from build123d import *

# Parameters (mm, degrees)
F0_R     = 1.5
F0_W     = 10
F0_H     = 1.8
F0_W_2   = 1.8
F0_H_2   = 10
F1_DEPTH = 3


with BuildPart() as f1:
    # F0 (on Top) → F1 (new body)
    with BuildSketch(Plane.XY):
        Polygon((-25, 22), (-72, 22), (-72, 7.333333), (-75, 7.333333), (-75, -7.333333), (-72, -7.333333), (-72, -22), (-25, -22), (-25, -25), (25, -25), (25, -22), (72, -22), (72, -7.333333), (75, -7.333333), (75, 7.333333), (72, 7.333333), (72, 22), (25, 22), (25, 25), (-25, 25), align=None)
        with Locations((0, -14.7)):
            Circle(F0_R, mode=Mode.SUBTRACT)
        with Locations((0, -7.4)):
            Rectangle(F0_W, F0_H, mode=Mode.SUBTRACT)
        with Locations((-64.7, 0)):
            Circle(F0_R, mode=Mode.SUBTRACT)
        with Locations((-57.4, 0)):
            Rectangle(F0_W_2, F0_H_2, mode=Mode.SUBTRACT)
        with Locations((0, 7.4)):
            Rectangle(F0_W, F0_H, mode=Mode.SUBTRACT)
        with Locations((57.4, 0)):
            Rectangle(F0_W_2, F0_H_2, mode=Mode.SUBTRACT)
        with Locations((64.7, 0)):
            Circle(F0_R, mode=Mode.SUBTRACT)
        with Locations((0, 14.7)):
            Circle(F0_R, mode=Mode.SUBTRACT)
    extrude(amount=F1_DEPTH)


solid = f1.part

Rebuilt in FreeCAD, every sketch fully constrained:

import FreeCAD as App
import Part
import Sketcher
from FreeCAD import Vector

doc = App.newDocument("Part")
params = doc.addObject("Spreadsheet::Sheet", "Params")
for row, (alias, value) in enumerate([
    ("sketch1_diameter", "3 mm"),
    ("sketch1_width", "47 mm"),
    ("sketch1_width2", "3 mm"),
    ("sketch1_width3", "50 mm"),
    ("sketch1_width4", "10 mm"),
    ("pad1_length", "3 mm"),
], start=1):
    params.set(f"A{row}", alias)
    params.set(f"B{row}", "=" + value)
    params.setAlias(f"B{row}", alias)

body = doc.addObject("PartDesign::Body", "Body")

# Sketch on XY plane
sketch1 = body.newObject("Sketcher::SketchObject", "Sketch")
sketch1.AttachmentSupport = (doc.getObject("XY_Plane"), [""])
sketch1.MapMode = "FlatFace"
sketch1.addGeometry([
    Part.LineSegment(Vector(-25, 22, 0), Vector(-72, 22, 0)),  # 0
    Part.LineSegment(Vector(-72, 22, 0), Vector(-72, 7.3, 0)),  # 1
    Part.LineSegment(Vector(-72, 7.3, 0), Vector(-75, 7.3, 0)),  # 2
    Part.LineSegment(Vector(-75, 7.3, 0), Vector(-75, -7.3, 0)),  # 3
    Part.LineSegment(Vector(-75, -7.3, 0), Vector(-72, -7.3, 0)),  # 4
    Part.LineSegment(Vector(-72, -7.3, 0), Vector(-72, -22, 0)),  # 5
    Part.LineSegment(Vector(-72, -22, 0), Vector(-25, -22, 0)),  # 6
    Part.LineSegment(Vector(-25, -22, 0), Vector(-25, -25, 0)),  # 7
    Part.LineSegment(Vector(-25, -25, 0), Vector(25, -25, 0)),  # 8
    Part.LineSegment(Vector(25, -25, 0), Vector(25, -22, 0)),  # 9
    Part.LineSegment(Vector(25, -22, 0), Vector(72, -22, 0)),  # 10
    Part.LineSegment(Vector(72, -22, 0), Vector(72, -7.3, 0)),  # 11
    Part.LineSegment(Vector(72, -7.3, 0), Vector(75, -7.3, 0)),  # 12
    Part.LineSegment(Vector(75, -7.3, 0), Vector(75, 7.3, 0)),  # 13
    Part.LineSegment(Vector(75, 7.3, 0), Vector(72, 7.3, 0)),  # 14
    Part.LineSegment(Vector(72, 7.3, 0), Vector(72, 22, 0)),  # 15
    Part.LineSegment(Vector(72, 22, 0), Vector(25, 22, 0)),  # 16
    Part.LineSegment(Vector(25, 22, 0), Vector(25, 25, 0)),  # 17
    Part.LineSegment(Vector(25, 25, 0), Vector(-25, 25, 0)),  # 18
    Part.LineSegment(Vector(-25, 25, 0), Vector(-25, 22, 0)),  # 19
    Part.Circle(Vector(0, -14.7, 0), Vector(0, 0, 1), 1.5),  # 20
    Part.LineSegment(Vector(5, -8.3, 0), Vector(-5, -8.3, 0)),  # 21
    Part.LineSegment(Vector(-5, -8.3, 0), Vector(-5, -6.5, 0)),  # 22
    Part.LineSegment(Vector(-5, -6.5, 0), Vector(5, -6.5, 0)),  # 23
    Part.LineSegment(Vector(5, -6.5, 0), Vector(5, -8.3, 0)),  # 24
    Part.Circle(Vector(-64.7, 0, 0), Vector(0, 0, 1), 1.5),  # 25
    Part.LineSegment(Vector(-56.5, -5, 0), Vector(-58.3, -5, 0)),  # 26
    Part.LineSegment(Vector(-58.3, -5, 0), Vector(-58.3, 5, 0)),  # 27
    Part.LineSegment(Vector(-58.3, 5, 0), Vector(-56.5, 5, 0)),  # 28
    Part.LineSegment(Vector(-56.5, 5, 0), Vector(-56.5, -5, 0)),  # 29
    Part.LineSegment(Vector(5, 6.5, 0), Vector(-5, 6.5, 0)),  # 30
    Part.LineSegment(Vector(-5, 6.5, 0), Vector(-5, 8.3, 0)),  # 31
    Part.LineSegment(Vector(-5, 8.3, 0), Vector(5, 8.3, 0)),  # 32
    Part.LineSegment(Vector(5, 8.3, 0), Vector(5, 6.5, 0)),  # 33
    Part.LineSegment(Vector(58.3, -5, 0), Vector(56.5, -5, 0)),  # 34
    Part.LineSegment(Vector(56.5, -5, 0), Vector(56.5, 5, 0)),  # 35
    Part.LineSegment(Vector(56.5, 5, 0), Vector(58.3, 5, 0)),  # 36
    Part.LineSegment(Vector(58.3, 5, 0), Vector(58.3, -5, 0)),  # 37
    Part.Circle(Vector(64.7, 0, 0), Vector(0, 0, 1), 1.5),  # 38
    Part.Circle(Vector(0, 14.7, 0), Vector(0, 0, 1), 1.5),  # 39
], False)
sketch1.addConstraint([
    Sketcher.Constraint("Coincident", 0, 2, 1, 1),
    Sketcher.Constraint("Coincident", 1, 2, 2, 1),
    Sketcher.Constraint("Coincident", 2, 2, 3, 1),
    Sketcher.Constraint("Coincident", 3, 2, 4, 1),
    Sketcher.Constraint("Coincident", 4, 2, 5, 1),
    Sketcher.Constraint("Coincident", 5, 2, 6, 1),
    Sketcher.Constraint("Coincident", 6, 2, 7, 1),
    Sketcher.Constraint("Coincident", 7, 2, 8, 1),
    Sketcher.Constraint("Coincident", 8, 2, 9, 1),
    Sketcher.Constraint("Coincident", 9, 2, 10, 1),
    Sketcher.Constraint("Coincident", 10, 2, 11, 1),
    Sketcher.Constraint("Coincident", 11, 2, 12, 1),
    Sketcher.Constraint("Coincident", 12, 2, 13, 1),
    Sketcher.Constraint("Coincident", 13, 2, 14, 1),
    Sketcher.Constraint("Coincident", 14, 2, 15, 1),
    Sketcher.Constraint("Coincident", 15, 2, 16, 1),
    Sketcher.Constraint("Coincident", 16, 2, 17, 1),
    Sketcher.Constraint("Coincident", 17, 2, 18, 1),
    Sketcher.Constraint("Coincident", 18, 2, 19, 1),
    Sketcher.Constraint("Coincident", 19, 2, 0, 1),
    Sketcher.Constraint("Coincident", 21, 2, 22, 1),
    Sketcher.Constraint("Coincident", 22, 2, 23, 1),
    Sketcher.Constraint("Coincident", 23, 2, 24, 1),
    Sketcher.Constraint("Coincident", 24, 2, 21, 1),
    Sketcher.Constraint("Coincident", 26, 2, 27, 1),
    Sketcher.Constraint("Coincident", 27, 2, 28, 1),
    Sketcher.Constraint("Coincident", 28, 2, 29, 1),
    Sketcher.Constraint("Coincident", 29, 2, 26, 1),
    Sketcher.Constraint("Coincident", 30, 2, 31, 1),
    Sketcher.Constraint("Coincident", 31, 2, 32, 1),
    Sketcher.Constraint("Coincident", 32, 2, 33, 1),
    Sketcher.Constraint("Coincident", 33, 2, 30, 1),
    Sketcher.Constraint("Coincident", 34, 2, 35, 1),
    Sketcher.Constraint("Coincident", 35, 2, 36, 1),
    Sketcher.Constraint("Coincident", 36, 2, 37, 1),
    Sketcher.Constraint("Coincident", 37, 2, 34, 1),
    Sketcher.Constraint("Horizontal", 0),
    Sketcher.Constraint("Vertical", 1),
    Sketcher.Constraint("Horizontal", 2),
    Sketcher.Constraint("Vertical", 3),
    Sketcher.Constraint("Horizontal", 4),
    Sketcher.Constraint("Vertical", 5),
    Sketcher.Constraint("Horizontal", 6),
    Sketcher.Constraint("Vertical", 7),
    Sketcher.Constraint("Horizontal", 8),
    Sketcher.Constraint("Vertical", 9),
    Sketcher.Constraint("Horizontal", 10),
    Sketcher.Constraint("Vertical", 11),
    Sketcher.Constraint("Horizontal", 12),
    Sketcher.Constraint("Vertical", 13),
    Sketcher.Constraint("Horizontal", 14),
    Sketcher.Constraint("Vertical", 15),
    Sketcher.Constraint("Horizontal", 16),
    Sketcher.Constraint("Vertical", 17),
    Sketcher.Constraint("Horizontal", 18),
    Sketcher.Constraint("Vertical", 19),
    Sketcher.Constraint("Horizontal", 21),
    Sketcher.Constraint("Vertical", 22),
    Sketcher.Constraint("Horizontal", 23),
    Sketcher.Constraint("Vertical", 24),
    Sketcher.Constraint("Horizontal", 26),
    Sketcher.Constraint("Vertical", 27),
    Sketcher.Constraint("Horizontal", 28),
    Sketcher.Constraint("Vertical", 29),
    Sketcher.Constraint("Horizontal", 30),
    Sketcher.Constraint("Vertical", 31),
    Sketcher.Constraint("Horizontal", 32),
    Sketcher.Constraint("Vertical", 33),
    Sketcher.Constraint("Horizontal", 34),
    Sketcher.Constraint("Vertical", 35),
    Sketcher.Constraint("Horizontal", 36),
    Sketcher.Constraint("Vertical", 37),
    Sketcher.Constraint("Equal", 20, 25),
    Sketcher.Constraint("Equal", 25, 38),
    Sketcher.Constraint("Equal", 38, 39),
    Sketcher.Constraint("Symmetric", 25, 3, 38, 3, -1, 1),
    Sketcher.Constraint("Symmetric", 20, 3, 39, 3, -1, 1),
    Sketcher.Constraint("Symmetric", 0, 2, 10, 2, -1, 1),
    Sketcher.Constraint("Symmetric", 2, 2, 12, 2, -1, 1),
    Sketcher.Constraint("Symmetric", 4, 2, 14, 2, -1, 1),
    Sketcher.Constraint("Symmetric", 6, 2, 16, 2, -1, 1),
    Sketcher.Constraint("Symmetric", 8, 2, 18, 2, -1, 1),
    Sketcher.Constraint("Symmetric", 23, 2, 30, 2, -1, 1),
    Sketcher.Constraint("Symmetric", 21, 2, 32, 2, -1, 1),
    Sketcher.Constraint("Symmetric", 28, 2, 34, 2, -1, 1),
    Sketcher.Constraint("Symmetric", 26, 2, 36, 2, -1, 1),
    Sketcher.Constraint("Symmetric", 6, 2, 9, 2, -2),
    Sketcher.Constraint("Symmetric", 4, 2, 11, 2, -2),
    Sketcher.Constraint("PointOnObject", 20, 3, -2),
    Sketcher.Constraint("PointOnObject", 25, 3, -1),
    Sketcher.Constraint("Horizontal", 29, 2, 34, 2),
    Sketcher.Constraint("Vertical", 22, 2, 30, 2),
    Sketcher.Constraint("Equal", 1, 3),
    Sketcher.Constraint("Equal", 14, 7),
    Sketcher.Constraint("Equal", 36, 22),
    Sketcher.Constraint("Equal", 32, 27),
    Sketcher.Constraint("Diameter", 20, 3.0),
    Sketcher.Constraint("DistanceX", 0, 2, 0, 1, 47.0),
    Sketcher.Constraint("DistanceX", 2, 2, 2, 1, 3.0),
    Sketcher.Constraint("DistanceX", 8, 1, 8, 2, 50.0),
    Sketcher.Constraint("DistanceX", 21, 2, 21, 1, 10.0),
    Sketcher.Constraint("DistanceX", 26, 2, 26, 1, 1.8),
    Sketcher.Constraint("DistanceY", -1, 1, 0, 2, 22.0),
    Sketcher.Constraint("DistanceY", 21, 2, 39, 3, 23.0),
    Sketcher.Constraint("DistanceY", 22, 2, 30, 2, 13.0),
    Sketcher.Constraint("DistanceX", 25, 3, -1, 1, 64.7),
    Sketcher.Constraint("DistanceX", 26, 2, -1, 1, 58.3),
])
sketch1.setExpression("Constraints[96]", "Params.sketch1_diameter")
sketch1.setExpression("Constraints[97]", "Params.sketch1_width")
sketch1.setExpression("Constraints[98]", "Params.sketch1_width2")
sketch1.setExpression("Constraints[99]", "Params.sketch1_width3")
sketch1.setExpression("Constraints[100]", "Params.sketch1_width4")
pad1 = body.newObject("PartDesign::Pad", "Pad")
pad1.Profile = sketch1
pad1.setExpression("Length", "Params.pad1_length")

doc.recompute()
